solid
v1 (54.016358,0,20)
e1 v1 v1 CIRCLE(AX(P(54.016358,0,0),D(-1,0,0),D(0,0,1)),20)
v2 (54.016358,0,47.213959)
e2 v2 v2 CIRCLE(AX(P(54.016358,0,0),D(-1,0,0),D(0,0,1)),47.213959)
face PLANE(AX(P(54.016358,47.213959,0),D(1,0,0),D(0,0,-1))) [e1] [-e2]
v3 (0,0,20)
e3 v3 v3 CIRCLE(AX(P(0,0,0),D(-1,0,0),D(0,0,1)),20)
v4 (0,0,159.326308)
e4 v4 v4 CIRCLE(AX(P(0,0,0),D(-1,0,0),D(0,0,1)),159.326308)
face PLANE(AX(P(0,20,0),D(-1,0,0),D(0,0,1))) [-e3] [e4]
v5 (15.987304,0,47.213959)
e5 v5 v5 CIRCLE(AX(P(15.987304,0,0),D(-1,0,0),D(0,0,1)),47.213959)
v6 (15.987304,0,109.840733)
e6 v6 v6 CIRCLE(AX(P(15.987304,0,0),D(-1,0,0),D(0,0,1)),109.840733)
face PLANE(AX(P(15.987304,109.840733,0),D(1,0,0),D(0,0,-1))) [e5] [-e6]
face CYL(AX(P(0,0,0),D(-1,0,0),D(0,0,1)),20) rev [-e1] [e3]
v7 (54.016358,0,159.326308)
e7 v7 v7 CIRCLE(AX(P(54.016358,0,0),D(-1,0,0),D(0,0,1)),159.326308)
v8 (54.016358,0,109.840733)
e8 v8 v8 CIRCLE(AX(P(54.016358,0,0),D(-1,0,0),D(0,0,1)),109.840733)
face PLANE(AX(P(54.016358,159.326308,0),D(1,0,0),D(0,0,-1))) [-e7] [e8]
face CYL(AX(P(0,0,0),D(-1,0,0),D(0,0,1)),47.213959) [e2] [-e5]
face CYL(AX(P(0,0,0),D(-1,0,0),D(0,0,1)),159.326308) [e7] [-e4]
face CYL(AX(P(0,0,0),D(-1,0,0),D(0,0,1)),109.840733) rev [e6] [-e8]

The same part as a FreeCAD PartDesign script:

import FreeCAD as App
import Part
import Sketcher
Q = App.Units.Quantity


def add_polygon(sketch, points):
    """Adds a closed chain of lines whose ends are joined by coincident constraints."""
    first, n = sketch.GeometryCount, len(points)
    for a, b in zip(points, points[1:] + points[:1]):
        sketch.addGeometry(Part.LineSegment(App.Vector(*a, 0), App.Vector(*b, 0)), False)
    for i in range(n):
        sketch.addConstraint(Sketcher.Constraint("Coincident", first + i, 2, first + (i + 1) % n, 1))

doc = App.newDocument("Part")
body = doc.addObject("PartDesign::Body", "Body")

# Sketch on XY plane
sketch1 = body.newObject("Sketcher::SketchObject", "Sketch")
sketch1.AttachmentSupport = (doc.getObject("XY_Plane"), [""])
sketch1.MapMode = "FlatFace"
add_polygon(sketch1, [(54, 159), (0, 159), (0, 20), (54, 20), (54, 47), (16, 47), (16, 110), (54, 110)])  # lines 0-7
sketch1.addConstraint([
    Sketcher.Constraint("Horizontal", 0),
    Sketcher.Constraint("Vertical", 1),
    Sketcher.Constraint("Horizontal", 2),
    Sketcher.Constraint("Vertical", 3),
    Sketcher.Constraint("Horizontal", 4),
    Sketcher.Constraint("Vertical", 5),
    Sketcher.Constraint("Horizontal", 6),
    Sketcher.Constraint("Vertical", 7),
    Sketcher.Constraint("PointOnObject", 0, 2, -2),
    Sketcher.Constraint("Vertical", 3, 2, 6, 2),
    Sketcher.Constraint("DistanceY", -1, 1, 1, 2, Q("20 mm")),
    Sketcher.Constraint("DistanceY", 1, 2, 1, 1, Q("139.326308 mm")),
    Sketcher.Constraint("DistanceY", 3, 1, 3, 2, Q("27.213959 mm")),
    Sketcher.Constraint("DistanceX", 0, 2, 0, 1, Q("54.016358 mm")),
    Sketcher.Constraint("DistanceX", 4, 2, 4, 1, Q("38.029053 mm")),
    Sketcher.Constraint("DistanceY", 5, 1, 5, 2, Q("62.626774 mm")),
])
revolution = body.newObject("PartDesign::Revolution", "Revolution")
revolution.Profile = sketch1
revolution.ReferenceAxis = (sketch1, ["H_Axis"])
revolution.Angle = 360

doc.recompute()
